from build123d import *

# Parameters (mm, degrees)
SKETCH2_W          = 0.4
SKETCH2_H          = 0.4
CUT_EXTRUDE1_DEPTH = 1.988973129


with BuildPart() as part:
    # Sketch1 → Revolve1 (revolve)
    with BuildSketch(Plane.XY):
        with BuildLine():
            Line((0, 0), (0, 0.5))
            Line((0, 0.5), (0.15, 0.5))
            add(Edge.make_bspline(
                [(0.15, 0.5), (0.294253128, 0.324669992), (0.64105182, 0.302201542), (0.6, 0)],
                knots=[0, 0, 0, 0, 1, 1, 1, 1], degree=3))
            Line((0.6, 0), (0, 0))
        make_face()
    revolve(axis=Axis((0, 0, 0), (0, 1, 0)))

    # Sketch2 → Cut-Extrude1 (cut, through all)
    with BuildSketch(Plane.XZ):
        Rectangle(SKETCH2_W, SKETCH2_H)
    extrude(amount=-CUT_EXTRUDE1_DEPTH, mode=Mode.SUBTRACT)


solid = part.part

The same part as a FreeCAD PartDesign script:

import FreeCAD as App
import Part
import Sketcher

V = App.Vector


def add_polygon(sketch, points):
    """Adds a closed chain of lines whose ends are joined by coincident constraints."""
    first, n = sketch.GeometryCount, len(points)
    for a, b in zip(points, points[1:] + points[:1]):
        sketch.addGeometry(Part.LineSegment(App.Vector(*a, 0), App.Vector(*b, 0)), False)
    for i in range(n):
        sketch.addConstraint(Sketcher.Constraint("Coincident", first + i, 2, first + (i + 1) % n, 1))

doc = App.newDocument("Part")
params = doc.addObject("Spreadsheet::Sheet", "Params")
for row, (alias, value) in enumerate([
    ("revolution_angle", "360 deg"),
    ("sketch2_width", "0.4 mm"),
], start=1):
    params.set(f"A{row}", alias)
    params.set(f"B{row}", "=" + value)
    params.setAlias(f"B{row}", alias)

body = doc.addObject("PartDesign::Body", "Body")

sketch1 = body.newObject("Sketcher::SketchObject", "Sketch")
sketch1.AttachmentSupport = (doc.getObject("XY_Plane"), [""])
sketch1.MapMode = "FlatFace"
sketch1.addGeometry([
    Part.LineSegment(V(0, 0.5, 0), V(0, 0, 0)),
    Part.LineSegment(V(0, 0, 0), V(0.6, 0, 0)),
    Part.BSplineCurve([V(0.15, 0.5, 0), V(0.294253, 0.32467, 0), V(0.641052, 0.302202, 0), V(0.6, 0, 0)], [4, 4], [0, 1], False, 3, [1, 1, 1, 1], False),
    Part.LineSegment(V(0.15, 0.5, 0), V(0, 0.5, 0)),
], False)
sketch1.addConstraint([
    Sketcher.Constraint("Block", 2),
    Sketcher.Constraint("Coincident", 0, 2, 1, 1),
    Sketcher.Constraint("Coincident", 1, 2, 2, 2),
    Sketcher.Constraint("Coincident", 2, 1, 3, 1),
    Sketcher.Constraint("Coincident", 3, 2, 0, 1),
    Sketcher.Constraint("Vertical", 0),
    Sketcher.Constraint("Horizontal", 1),
    Sketcher.Constraint("Horizontal", 3),
    Sketcher.Constraint("PointOnObject", 3, 2, -2),
])
revolution = body.newObject("PartDesign::Revolution", "Revolution")
revolution.Profile = sketch1
revolution.ReferenceAxis = (sketch1, ["V_Axis"])
revolution.setExpression("Angle", "Params.revolution_angle")

sketch2 = body.newObject("Sketcher::SketchObject", "Sketch001")
sketch2.AttachmentSupport = (doc.getObject("XZ_Plane"), [""])
sketch2.MapMode = "FlatFace"
add_polygon(sketch2, [(-0.2, 0.2), (-0.2, -0.2), (0.2, -0.2), (0.2, 0.2)])
sketch2.addConstraint([
    Sketcher.Constraint("Vertical", 0),
    Sketcher.Constraint("Horizontal", 1),
    Sketcher.Constraint("Vertical", 2),
    Sketcher.Constraint("Horizontal", 3),
    Sketcher.Constraint("Symmetric", 0, 2, 2, 2, -1, 1),
    Sketcher.Constraint("Equal", 3, 0),
    Sketcher.Constraint("DistanceX", 1, 1, 1, 2, 0.4),
])
sketch2.setExpression("Constraints[10]", "Params.sketch2_width")
pocket1 = body.newObject("PartDesign::Pocket", "Pocket")
pocket1.Profile = sketch2
pocket1.Type = "ThroughAll"

doc.recompute()
